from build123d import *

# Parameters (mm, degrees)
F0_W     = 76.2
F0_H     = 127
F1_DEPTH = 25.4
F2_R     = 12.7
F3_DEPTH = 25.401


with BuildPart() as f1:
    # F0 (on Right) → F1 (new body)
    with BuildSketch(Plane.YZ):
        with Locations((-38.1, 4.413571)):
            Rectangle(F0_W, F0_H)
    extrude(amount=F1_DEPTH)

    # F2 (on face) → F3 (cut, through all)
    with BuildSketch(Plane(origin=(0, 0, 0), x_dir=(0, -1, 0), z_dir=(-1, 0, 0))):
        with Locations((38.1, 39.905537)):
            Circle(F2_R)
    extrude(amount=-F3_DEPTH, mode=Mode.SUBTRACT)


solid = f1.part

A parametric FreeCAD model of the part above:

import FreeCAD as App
import Part
import Sketcher
Q = App.Units.Quantity

doc = App.newDocument("Part")
body = doc.addObject("PartDesign::Body", "Body")

# Sketch on YZ plane
sketch1 = doc.addObject("Sketcher::SketchObject", "Sketch")
body.addObject(sketch1)
sketch1.AttachmentSupport = (doc.YZ_Plane, [""])
sketch1.MapMode = "FlatFace"
sketch1.addGeometry([
    Part.LineSegment(App.Vector(-76, 68, 0), App.Vector(-76, -59, 0)),
    Part.LineSegment(App.Vector(-76, -59, 0), App.Vector(0, -59, 0)),
    Part.LineSegment(App.Vector(0, -59, 0), App.Vector(0, 68, 0)),
    Part.LineSegment(App.Vector(0, 68, 0), App.Vector(-76, 68, 0)),
], False)
sketch1.addConstraint([
    Sketcher.Constraint("Coincident", 0, 2, 1, 1),
    Sketcher.Constraint("Coincident", 1, 2, 2, 1),
    Sketcher.Constraint("Coincident", 2, 2, 3, 1),
    Sketcher.Constraint("Coincident", 3, 2, 0, 1),
    Sketcher.Constraint("Vertical", 0),
    Sketcher.Constraint("Horizontal", 1),
    Sketcher.Constraint("Vertical", 2),
    Sketcher.Constraint("Horizontal", 3),
    Sketcher.Constraint("PointOnObject", 1, 2, -2),
    Sketcher.Constraint("DistanceX", 1, 1, 1, 2, Q("3 in")),
    Sketcher.Constraint("DistanceY", 0, 2, 0, 1, Q("5 in")),
    Sketcher.Constraint("DistanceY", 0, 2, -1, 1, Q("59.086429 mm")),
])
pad1 = doc.addObject("PartDesign::Pad", "Pad")
body.addObject(pad1)
pad1.Profile = sketch1
pad1.Length = Q("1 in")

# Sketch on YZ plane
sketch2 = doc.addObject("Sketcher::SketchObject", "Sketch001")
body.addObject(sketch2)
sketch2.AttachmentSupport = (doc.YZ_Plane, [""])
sketch2.MapMode = "FlatFace"
sketch2.addGeometry(Part.Circle(App.Vector(-38, 40, 0), App.Vector(0, 0, 1), 13), False)
sketch2.addConstraint([
    Sketcher.Constraint("Diameter", 0, Q("1 in")),
    Sketcher.Constraint("DistanceX", 0, 3, -1, 1, Q("1.5 in")),
    Sketcher.Constraint("DistanceY", -1, 1, 0, 3, Q("39.905537 mm")),
])
pocket1 = doc.addObject("PartDesign::Pocket", "Pocket")
body.addObject(pocket1)
pocket1.Profile = sketch2
pocket1.Type = "ThroughAll"
pocket1.Reversed = True

doc.recompute()
